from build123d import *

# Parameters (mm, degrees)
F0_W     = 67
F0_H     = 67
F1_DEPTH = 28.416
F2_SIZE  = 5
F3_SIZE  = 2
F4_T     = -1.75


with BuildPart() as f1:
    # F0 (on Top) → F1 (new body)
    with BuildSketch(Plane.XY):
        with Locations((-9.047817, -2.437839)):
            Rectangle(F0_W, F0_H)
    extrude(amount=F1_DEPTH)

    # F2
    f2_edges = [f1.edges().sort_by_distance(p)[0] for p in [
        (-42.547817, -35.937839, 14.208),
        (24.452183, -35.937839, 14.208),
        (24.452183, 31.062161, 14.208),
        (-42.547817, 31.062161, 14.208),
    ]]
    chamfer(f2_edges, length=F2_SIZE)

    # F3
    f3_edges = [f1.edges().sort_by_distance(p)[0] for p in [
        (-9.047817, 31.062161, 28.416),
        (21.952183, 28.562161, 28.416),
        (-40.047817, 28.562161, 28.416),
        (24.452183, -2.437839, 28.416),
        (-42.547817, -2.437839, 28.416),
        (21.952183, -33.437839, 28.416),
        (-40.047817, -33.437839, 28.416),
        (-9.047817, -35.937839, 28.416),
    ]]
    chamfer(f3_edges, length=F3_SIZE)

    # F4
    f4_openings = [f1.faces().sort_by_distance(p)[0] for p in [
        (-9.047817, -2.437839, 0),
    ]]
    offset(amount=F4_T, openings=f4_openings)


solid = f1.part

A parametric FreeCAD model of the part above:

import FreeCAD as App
import Part
import Sketcher
from FreeCAD import Vector


def edges_at(feature, points):
    """Names of the edges that pass closest to the given points."""
    edges = feature.Shape.Edges
    near = lambda p: min(range(len(edges)), key=lambda i: edges[i].distToShape(Part.Vertex(*p))[0])
    return sorted({f"Edge{near(p) + 1}" for p in points})


def faces_at(feature, points):
    """Names of the faces that lie closest to the given points."""
    faces = feature.Shape.Faces
    near = lambda p: min(range(len(faces)), key=lambda i: faces[i].distToShape(Part.Vertex(*p))[0])
    return sorted({f"Face{near(p) + 1}" for p in points})

doc = App.newDocument("Part")
body = doc.addObject("PartDesign::Body", "Body")

# Sketch on XY plane
sketch1 = doc.addObject("Sketcher::SketchObject", "Sketch")
body.addObject(sketch1)
sketch1.AttachmentSupport = (doc.XY_Plane, [""])
sketch1.MapMode = "FlatFace"
sketch1.addGeometry([
    Part.LineSegment(Vector(-42.547817, 31.062161, 0), Vector(-42.547817, -35.937839, 0)),
    Part.LineSegment(Vector(-42.547817, -35.937839, 0), Vector(24.452183, -35.937839, 0)),
    Part.LineSegment(Vector(24.452183, -35.937839, 0), Vector(24.452183, 31.062161, 0)),
    Part.LineSegment(Vector(24.452183, 31.062161, 0), Vector(-42.547817, 31.062161, 0)),
], False)
sketch1.addConstraint([
    Sketcher.Constraint("Coincident", 0, 2, 1, 1),
    Sketcher.Constraint("Coincident", 1, 2, 2, 1),
    Sketcher.Constraint("Coincident", 2, 2, 3, 1),
    Sketcher.Constraint("Coincident", 3, 2, 0, 1),
    Sketcher.Constraint("Vertical", 0),
    Sketcher.Constraint("Horizontal", 1),
    Sketcher.Constraint("Vertical", 2),
    Sketcher.Constraint("Horizontal", 3),
    Sketcher.Constraint("Equal", 3, 0),
    Sketcher.Constraint("DistanceX", 1, 1, 1, 2, 67.0),
    Sketcher.Constraint("DistanceY", 0, 2, -1, 1, 35.937839),
    Sketcher.Constraint("DistanceX", 0, 2, -1, 1, 42.547817),
])
pad1 = doc.addObject("PartDesign::Pad", "Pad")
body.addObject(pad1)
pad1.Profile = sketch1
pad1.Length = 28.416
doc.recompute()

chamfer = doc.addObject("PartDesign::Chamfer", "Chamfer")
body.addObject(chamfer)
chamfer.Base = (pad1, edges_at(pad1, [
    (-42.548, -35.938, 14.208),
    (24.452, -35.938, 14.208),
    (24.452, 31.062, 14.208),
    (-42.548, 31.062, 14.208),
]))
chamfer.Size = 5
doc.recompute()

chamfer2 = doc.addObject("PartDesign::Chamfer", "Chamfer001")
body.addObject(chamfer2)
chamfer2.Base = (chamfer, edges_at(chamfer, [
    (-9.048, 31.062, 28.416),
    (21.952, 28.562, 28.416),
    (-40.048, 28.562, 28.416),
    (24.452, -2.438, 28.416),
    (-42.548, -2.438, 28.416),
    (21.952, -33.438, 28.416),
    (-40.048, -33.438, 28.416),
    (-9.048, -35.938, 28.416),
]))
chamfer2.Size = 2
doc.recompute()

thickness = doc.addObject("PartDesign::Thickness", "Thickness")
body.addObject(thickness)
thickness.Base = (chamfer2, faces_at(chamfer2, [(-9.048, -2.438, 0)]))
thickness.Value = 1.75
thickness.Reversed = True
thickness.Join = "Arc"

doc.recompute()
